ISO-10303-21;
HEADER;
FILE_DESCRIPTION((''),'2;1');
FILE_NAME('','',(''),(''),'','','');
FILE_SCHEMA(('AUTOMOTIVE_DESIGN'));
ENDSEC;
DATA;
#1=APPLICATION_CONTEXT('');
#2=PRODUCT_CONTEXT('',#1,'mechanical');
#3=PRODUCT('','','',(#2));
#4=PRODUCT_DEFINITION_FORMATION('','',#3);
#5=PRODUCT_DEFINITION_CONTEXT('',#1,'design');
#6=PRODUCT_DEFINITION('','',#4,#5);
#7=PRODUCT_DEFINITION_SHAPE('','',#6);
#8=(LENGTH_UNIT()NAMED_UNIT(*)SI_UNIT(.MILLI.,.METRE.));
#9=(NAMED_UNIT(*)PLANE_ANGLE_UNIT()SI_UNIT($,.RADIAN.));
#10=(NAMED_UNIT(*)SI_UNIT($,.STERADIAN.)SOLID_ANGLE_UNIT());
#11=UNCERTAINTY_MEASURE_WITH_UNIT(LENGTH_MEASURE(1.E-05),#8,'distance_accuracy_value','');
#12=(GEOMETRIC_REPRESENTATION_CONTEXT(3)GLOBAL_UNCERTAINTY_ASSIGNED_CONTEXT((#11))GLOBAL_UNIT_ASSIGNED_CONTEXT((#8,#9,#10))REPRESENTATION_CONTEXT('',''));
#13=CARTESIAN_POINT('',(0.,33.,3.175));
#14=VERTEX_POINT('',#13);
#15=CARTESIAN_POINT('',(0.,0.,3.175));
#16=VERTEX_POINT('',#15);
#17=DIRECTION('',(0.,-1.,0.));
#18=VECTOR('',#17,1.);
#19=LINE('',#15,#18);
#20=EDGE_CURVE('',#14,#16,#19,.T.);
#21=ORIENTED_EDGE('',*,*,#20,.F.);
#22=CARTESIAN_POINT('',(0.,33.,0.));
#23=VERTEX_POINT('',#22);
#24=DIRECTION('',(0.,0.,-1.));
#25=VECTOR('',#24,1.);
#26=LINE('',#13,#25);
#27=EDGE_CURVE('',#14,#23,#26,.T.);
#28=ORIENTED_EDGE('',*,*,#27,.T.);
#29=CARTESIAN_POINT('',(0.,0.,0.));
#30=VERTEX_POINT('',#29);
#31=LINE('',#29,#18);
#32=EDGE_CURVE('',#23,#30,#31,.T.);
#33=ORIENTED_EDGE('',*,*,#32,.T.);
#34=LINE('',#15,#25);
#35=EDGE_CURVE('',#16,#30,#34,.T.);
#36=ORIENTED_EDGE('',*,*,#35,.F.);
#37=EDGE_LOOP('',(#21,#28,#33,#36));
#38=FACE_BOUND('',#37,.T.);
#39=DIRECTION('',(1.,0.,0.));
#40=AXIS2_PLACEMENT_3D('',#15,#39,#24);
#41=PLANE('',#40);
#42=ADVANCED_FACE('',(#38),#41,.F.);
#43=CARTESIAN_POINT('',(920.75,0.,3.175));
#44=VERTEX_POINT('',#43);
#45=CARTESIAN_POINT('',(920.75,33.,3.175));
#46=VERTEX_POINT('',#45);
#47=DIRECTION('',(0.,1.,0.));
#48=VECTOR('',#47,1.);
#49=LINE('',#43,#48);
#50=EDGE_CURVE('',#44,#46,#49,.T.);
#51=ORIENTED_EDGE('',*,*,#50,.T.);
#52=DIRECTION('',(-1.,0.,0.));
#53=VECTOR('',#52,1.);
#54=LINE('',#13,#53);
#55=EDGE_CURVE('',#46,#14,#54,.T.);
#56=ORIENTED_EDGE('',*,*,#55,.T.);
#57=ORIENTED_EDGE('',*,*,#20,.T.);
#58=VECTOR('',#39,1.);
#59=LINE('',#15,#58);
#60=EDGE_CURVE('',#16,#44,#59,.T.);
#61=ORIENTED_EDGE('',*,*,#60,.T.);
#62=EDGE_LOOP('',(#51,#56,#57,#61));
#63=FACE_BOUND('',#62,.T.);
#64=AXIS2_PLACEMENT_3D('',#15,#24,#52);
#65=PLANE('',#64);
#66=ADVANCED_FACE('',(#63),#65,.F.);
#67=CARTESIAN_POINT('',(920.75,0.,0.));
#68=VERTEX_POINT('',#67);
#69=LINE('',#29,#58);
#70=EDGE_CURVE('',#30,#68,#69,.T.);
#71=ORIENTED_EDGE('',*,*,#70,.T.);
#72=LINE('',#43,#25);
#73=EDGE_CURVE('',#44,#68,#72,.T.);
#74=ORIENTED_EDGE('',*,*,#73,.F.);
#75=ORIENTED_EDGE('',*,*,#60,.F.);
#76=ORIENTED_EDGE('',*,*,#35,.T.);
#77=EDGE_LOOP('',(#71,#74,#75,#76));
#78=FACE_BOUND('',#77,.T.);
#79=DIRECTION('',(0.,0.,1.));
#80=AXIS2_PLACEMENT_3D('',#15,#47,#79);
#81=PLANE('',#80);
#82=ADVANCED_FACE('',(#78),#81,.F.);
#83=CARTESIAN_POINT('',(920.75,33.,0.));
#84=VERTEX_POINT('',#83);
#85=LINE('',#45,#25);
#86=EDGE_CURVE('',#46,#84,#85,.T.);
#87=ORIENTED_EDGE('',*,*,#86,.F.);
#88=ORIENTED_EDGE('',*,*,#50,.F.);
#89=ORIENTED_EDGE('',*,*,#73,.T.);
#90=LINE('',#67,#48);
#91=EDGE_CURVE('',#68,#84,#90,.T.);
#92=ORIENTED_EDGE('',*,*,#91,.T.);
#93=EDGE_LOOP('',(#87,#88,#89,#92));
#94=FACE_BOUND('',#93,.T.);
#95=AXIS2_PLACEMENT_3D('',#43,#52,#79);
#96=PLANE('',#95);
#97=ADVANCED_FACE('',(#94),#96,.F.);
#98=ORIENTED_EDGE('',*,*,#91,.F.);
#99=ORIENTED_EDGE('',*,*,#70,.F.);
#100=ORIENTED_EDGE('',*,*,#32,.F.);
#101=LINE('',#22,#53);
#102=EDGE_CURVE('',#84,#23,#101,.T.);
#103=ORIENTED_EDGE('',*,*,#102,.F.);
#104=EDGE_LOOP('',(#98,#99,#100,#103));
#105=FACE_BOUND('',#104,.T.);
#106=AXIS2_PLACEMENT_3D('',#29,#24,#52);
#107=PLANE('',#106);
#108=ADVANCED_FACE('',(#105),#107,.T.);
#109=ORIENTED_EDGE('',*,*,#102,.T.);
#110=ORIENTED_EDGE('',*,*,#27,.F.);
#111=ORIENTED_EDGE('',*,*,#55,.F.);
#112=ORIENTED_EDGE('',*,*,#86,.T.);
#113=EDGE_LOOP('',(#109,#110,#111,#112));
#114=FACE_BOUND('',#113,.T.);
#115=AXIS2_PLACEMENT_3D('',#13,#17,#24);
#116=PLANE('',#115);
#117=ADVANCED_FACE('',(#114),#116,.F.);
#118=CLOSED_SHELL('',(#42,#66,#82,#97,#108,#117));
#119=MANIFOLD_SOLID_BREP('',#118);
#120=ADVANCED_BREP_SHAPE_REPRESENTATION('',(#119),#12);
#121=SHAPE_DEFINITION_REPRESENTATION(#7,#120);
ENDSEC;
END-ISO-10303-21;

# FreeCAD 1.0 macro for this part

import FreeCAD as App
import Part
import Sketcher

V = App.Vector
Q = App.Units.Quantity

doc = App.newDocument("Part")
body = doc.addObject("PartDesign::Body", "Body")

# Sketch on XY plane
sketch1 = body.newObject("Sketcher::SketchObject", "Sketch")
sketch1.AttachmentSupport = (doc.getObject("XY_Plane"), [""])
sketch1.MapMode = "FlatFace"
sketch1.addGeometry(Part.LineSegment(V(0, 33, 0), V(0, 0, 0)), False)
sketch1.addGeometry(Part.LineSegment(V(0, 0, 0), V(921, 0, 0)), False)
sketch1.addGeometry(Part.LineSegment(V(921, 0, 0), V(921, 33, 0)), False)
sketch1.addGeometry(Part.LineSegment(V(921, 33, 0), V(0, 33, 0)), False)
sketch1.addConstraint(Sketcher.Constraint("Coincident", 0, 2, 1, 1))
sketch1.addConstraint(Sketcher.Constraint("Coincident", 1, 2, 2, 1))
sketch1.addConstraint(Sketcher.Constraint("Coincident", 2, 2, 3, 1))
sketch1.addConstraint(Sketcher.Constraint("Coincident", 3, 2, 0, 1))
sketch1.addConstraint(Sketcher.Constraint("Vertical", 0))
sketch1.addConstraint(Sketcher.Constraint("Horizontal", 1))
sketch1.addConstraint(Sketcher.Constraint("Vertical", 2))
sketch1.addConstraint(Sketcher.Constraint("Horizontal", 3))
sketch1.addConstraint(Sketcher.Constraint("Coincident", 0, 2, -1, 1))
sketch1.addConstraint(Sketcher.Constraint("DistanceX", 1, 1, 1, 2, Q("36.25 in")))
sketch1.addConstraint(Sketcher.Constraint("DistanceY", 0, 2, 0, 1, 33.0))
pad1 = body.newObject("PartDesign::Pad", "Pad")
pad1.Profile = sketch1
pad1.Length = Q("0.125 in")

doc.recompute()
